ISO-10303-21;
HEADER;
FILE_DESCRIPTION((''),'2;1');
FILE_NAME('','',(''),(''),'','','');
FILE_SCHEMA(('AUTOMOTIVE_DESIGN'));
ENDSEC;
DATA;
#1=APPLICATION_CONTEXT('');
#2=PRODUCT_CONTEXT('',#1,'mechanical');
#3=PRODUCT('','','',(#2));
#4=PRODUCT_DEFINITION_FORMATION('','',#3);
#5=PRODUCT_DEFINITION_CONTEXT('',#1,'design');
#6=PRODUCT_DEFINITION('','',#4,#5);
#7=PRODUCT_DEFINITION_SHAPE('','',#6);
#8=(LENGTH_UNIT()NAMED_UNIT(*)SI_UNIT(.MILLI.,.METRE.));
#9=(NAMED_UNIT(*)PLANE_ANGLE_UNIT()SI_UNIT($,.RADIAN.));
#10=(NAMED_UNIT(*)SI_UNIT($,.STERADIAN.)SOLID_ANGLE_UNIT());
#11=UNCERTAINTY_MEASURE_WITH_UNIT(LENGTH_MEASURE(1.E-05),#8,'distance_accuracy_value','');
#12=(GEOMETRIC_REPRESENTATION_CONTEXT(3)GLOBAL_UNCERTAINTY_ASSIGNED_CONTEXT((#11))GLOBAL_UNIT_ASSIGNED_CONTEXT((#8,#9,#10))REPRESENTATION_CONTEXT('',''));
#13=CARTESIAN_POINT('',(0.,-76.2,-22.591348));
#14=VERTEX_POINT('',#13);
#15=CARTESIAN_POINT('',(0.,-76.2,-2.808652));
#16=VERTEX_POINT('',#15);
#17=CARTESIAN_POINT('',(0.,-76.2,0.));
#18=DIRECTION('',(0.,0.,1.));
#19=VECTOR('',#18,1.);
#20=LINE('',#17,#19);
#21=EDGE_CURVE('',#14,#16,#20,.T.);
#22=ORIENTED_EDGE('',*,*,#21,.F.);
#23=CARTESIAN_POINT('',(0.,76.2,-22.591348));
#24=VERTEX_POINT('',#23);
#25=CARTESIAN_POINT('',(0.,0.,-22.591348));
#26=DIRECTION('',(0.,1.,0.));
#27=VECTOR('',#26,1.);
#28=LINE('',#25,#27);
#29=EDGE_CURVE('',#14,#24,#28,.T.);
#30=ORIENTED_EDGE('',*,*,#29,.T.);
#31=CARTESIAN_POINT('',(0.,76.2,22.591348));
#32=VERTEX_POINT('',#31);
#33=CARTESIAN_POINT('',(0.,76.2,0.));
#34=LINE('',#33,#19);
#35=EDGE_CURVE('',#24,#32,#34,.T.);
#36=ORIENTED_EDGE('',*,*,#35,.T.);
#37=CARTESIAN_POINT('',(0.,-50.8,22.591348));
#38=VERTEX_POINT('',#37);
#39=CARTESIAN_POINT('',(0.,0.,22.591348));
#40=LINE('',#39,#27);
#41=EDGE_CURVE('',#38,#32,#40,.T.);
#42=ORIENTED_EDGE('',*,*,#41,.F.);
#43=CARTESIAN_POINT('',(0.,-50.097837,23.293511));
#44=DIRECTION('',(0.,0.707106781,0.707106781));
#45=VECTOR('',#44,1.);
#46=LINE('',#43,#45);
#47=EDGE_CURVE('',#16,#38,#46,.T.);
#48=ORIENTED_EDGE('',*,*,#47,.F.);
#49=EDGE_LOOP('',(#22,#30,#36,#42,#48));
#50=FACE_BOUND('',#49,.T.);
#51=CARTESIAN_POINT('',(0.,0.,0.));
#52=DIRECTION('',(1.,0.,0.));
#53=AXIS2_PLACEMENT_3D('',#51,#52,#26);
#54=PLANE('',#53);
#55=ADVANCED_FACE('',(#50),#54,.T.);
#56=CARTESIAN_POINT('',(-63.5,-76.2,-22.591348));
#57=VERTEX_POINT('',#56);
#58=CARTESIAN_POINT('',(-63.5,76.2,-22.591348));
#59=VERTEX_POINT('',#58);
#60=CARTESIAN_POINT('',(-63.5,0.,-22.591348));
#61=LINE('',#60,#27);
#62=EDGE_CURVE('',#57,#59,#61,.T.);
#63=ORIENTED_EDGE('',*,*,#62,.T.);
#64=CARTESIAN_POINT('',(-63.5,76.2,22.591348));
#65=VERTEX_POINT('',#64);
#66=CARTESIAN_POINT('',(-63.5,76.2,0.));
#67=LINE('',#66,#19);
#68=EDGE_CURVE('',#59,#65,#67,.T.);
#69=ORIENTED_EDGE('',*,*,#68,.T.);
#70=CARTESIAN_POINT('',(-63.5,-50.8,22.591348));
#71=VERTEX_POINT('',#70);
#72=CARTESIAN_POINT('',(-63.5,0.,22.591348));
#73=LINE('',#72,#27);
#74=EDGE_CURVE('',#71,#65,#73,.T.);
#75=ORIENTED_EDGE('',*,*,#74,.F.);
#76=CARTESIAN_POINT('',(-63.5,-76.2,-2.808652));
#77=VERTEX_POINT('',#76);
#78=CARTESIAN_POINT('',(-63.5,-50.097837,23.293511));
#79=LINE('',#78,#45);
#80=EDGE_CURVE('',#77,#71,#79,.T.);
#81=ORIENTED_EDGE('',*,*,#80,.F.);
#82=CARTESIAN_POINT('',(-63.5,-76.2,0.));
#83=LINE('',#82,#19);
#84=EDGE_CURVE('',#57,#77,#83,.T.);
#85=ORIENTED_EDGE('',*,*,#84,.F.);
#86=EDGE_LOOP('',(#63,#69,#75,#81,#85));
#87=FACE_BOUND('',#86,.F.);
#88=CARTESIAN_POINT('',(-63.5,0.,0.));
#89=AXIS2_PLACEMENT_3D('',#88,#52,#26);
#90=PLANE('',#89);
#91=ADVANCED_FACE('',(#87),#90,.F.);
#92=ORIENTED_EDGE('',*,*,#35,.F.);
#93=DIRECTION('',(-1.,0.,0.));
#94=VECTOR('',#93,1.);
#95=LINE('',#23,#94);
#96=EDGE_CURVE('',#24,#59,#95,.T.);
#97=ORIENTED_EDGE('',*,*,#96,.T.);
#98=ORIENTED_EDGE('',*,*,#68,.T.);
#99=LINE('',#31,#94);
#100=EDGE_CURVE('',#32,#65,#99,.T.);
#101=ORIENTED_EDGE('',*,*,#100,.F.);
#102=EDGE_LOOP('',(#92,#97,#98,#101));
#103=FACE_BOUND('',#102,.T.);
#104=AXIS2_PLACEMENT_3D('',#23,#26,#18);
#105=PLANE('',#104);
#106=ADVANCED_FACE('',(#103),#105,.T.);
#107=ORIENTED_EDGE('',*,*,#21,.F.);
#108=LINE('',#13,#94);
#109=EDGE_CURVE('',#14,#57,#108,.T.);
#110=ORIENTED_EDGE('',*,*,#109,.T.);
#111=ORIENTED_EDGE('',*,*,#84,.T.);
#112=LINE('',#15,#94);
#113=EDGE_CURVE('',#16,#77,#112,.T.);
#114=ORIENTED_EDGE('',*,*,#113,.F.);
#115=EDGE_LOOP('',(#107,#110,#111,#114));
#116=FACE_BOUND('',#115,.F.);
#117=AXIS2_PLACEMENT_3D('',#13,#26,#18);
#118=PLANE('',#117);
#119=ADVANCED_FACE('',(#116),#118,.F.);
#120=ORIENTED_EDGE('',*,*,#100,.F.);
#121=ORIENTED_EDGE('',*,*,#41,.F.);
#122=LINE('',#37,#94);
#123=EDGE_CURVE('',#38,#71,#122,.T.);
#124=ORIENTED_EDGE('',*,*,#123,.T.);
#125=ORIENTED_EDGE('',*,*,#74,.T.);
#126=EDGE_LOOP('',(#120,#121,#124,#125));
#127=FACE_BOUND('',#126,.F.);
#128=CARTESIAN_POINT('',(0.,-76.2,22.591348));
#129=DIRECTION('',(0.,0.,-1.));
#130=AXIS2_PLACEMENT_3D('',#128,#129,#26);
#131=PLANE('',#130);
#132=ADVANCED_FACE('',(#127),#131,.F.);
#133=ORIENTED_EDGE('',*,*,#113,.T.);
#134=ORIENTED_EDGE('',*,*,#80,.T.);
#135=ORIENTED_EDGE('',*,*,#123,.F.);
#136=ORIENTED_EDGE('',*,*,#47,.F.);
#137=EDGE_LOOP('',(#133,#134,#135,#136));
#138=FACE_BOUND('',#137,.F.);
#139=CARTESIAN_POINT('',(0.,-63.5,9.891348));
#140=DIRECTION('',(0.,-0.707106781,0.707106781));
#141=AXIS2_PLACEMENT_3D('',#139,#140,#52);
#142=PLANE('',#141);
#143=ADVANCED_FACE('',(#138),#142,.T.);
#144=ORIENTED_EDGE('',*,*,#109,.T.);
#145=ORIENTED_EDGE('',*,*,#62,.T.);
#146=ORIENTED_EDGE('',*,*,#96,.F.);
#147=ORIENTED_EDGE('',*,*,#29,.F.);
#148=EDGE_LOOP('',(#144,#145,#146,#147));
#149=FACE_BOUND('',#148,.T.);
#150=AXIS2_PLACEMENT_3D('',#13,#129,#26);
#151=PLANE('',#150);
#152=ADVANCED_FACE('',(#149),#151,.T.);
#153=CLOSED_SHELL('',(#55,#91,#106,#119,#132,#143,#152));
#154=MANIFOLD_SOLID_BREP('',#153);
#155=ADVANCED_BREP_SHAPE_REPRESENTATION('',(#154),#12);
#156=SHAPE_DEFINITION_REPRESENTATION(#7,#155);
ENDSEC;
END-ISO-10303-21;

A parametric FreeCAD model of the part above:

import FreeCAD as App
import Part
import Sketcher
from FreeCAD import Vector
Q = App.Units.Quantity


def edges_at(feature, points):
    """Names of the edges that pass closest to the given points."""
    edges = feature.Shape.Edges
    near = lambda p: min(range(len(edges)), key=lambda i: edges[i].distToShape(Part.Vertex(*p))[0])
    return sorted({f"Edge{near(p) + 1}" for p in points})

doc = App.newDocument("Part")
params = doc.addObject("Spreadsheet::Sheet", "Params")
for row, (alias, value) in enumerate([
    ("sketch1_width", "6 in"),
    ("pad1_length", "2.5 in"),
    ("chamfer_size", "1 in"),
], start=1):
    params.set(f"A{row}", alias)
    params.set(f"B{row}", "=" + value)
    params.setAlias(f"B{row}", alias)

body = doc.addObject("PartDesign::Body", "Body")

sketch1 = body.newObject("Sketcher::SketchObject", "Sketch")
sketch1.AttachmentSupport = (doc.getObject("YZ_Plane"), [""])
sketch1.MapMode = "FlatFace"
sketch1.addGeometry(Part.LineSegment(Vector(-76.2, 22.591348, 0), Vector(-76.2, -22.591348, 0)), False)
sketch1.addGeometry(Part.LineSegment(Vector(-76.2, -22.591348, 0), Vector(76.2, -22.591348, 0)), False)
sketch1.addGeometry(Part.LineSegment(Vector(76.2, -22.591348, 0), Vector(76.2, 22.591348, 0)), False)
sketch1.addGeometry(Part.LineSegment(Vector(76.2, 22.591348, 0), Vector(-76.2, 22.591348, 0)), False)
sketch1.addConstraint(Sketcher.Constraint("Coincident", 0, 2, 1, 1))
sketch1.addConstraint(Sketcher.Constraint("Coincident", 1, 2, 2, 1))
sketch1.addConstraint(Sketcher.Constraint("Coincident", 2, 2, 3, 1))
sketch1.addConstraint(Sketcher.Constraint("Coincident", 3, 2, 0, 1))
sketch1.addConstraint(Sketcher.Constraint("Vertical", 0))
sketch1.addConstraint(Sketcher.Constraint("Horizontal", 1))
sketch1.addConstraint(Sketcher.Constraint("Vertical", 2))
sketch1.addConstraint(Sketcher.Constraint("Horizontal", 3))
sketch1.addConstraint(Sketcher.Constraint("Symmetric", 0, 2, 2, 2, -1, 1))
sketch1.addConstraint(Sketcher.Constraint("DistanceX", 1, 1, 1, 2, Q("6 in")))
sketch1.addConstraint(Sketcher.Constraint("DistanceY", 0, 2, 0, 1, 45.182696))
sketch1.setExpression("Constraints[9]", "Params.sketch1_width")
pad1 = body.newObject("PartDesign::Pad", "Pad")
pad1.Profile = sketch1
pad1.setExpression("Length", "Params.pad1_length")
pad1.Reversed = True
doc.recompute()

chamfer = body.newObject("PartDesign::Chamfer", "Chamfer")
chamfer.Base = (pad1, edges_at(pad1, [(-31.75, -76.2, 22.591)]))
chamfer.setExpression("Size", "Params.chamfer_size")

doc.recompute()
